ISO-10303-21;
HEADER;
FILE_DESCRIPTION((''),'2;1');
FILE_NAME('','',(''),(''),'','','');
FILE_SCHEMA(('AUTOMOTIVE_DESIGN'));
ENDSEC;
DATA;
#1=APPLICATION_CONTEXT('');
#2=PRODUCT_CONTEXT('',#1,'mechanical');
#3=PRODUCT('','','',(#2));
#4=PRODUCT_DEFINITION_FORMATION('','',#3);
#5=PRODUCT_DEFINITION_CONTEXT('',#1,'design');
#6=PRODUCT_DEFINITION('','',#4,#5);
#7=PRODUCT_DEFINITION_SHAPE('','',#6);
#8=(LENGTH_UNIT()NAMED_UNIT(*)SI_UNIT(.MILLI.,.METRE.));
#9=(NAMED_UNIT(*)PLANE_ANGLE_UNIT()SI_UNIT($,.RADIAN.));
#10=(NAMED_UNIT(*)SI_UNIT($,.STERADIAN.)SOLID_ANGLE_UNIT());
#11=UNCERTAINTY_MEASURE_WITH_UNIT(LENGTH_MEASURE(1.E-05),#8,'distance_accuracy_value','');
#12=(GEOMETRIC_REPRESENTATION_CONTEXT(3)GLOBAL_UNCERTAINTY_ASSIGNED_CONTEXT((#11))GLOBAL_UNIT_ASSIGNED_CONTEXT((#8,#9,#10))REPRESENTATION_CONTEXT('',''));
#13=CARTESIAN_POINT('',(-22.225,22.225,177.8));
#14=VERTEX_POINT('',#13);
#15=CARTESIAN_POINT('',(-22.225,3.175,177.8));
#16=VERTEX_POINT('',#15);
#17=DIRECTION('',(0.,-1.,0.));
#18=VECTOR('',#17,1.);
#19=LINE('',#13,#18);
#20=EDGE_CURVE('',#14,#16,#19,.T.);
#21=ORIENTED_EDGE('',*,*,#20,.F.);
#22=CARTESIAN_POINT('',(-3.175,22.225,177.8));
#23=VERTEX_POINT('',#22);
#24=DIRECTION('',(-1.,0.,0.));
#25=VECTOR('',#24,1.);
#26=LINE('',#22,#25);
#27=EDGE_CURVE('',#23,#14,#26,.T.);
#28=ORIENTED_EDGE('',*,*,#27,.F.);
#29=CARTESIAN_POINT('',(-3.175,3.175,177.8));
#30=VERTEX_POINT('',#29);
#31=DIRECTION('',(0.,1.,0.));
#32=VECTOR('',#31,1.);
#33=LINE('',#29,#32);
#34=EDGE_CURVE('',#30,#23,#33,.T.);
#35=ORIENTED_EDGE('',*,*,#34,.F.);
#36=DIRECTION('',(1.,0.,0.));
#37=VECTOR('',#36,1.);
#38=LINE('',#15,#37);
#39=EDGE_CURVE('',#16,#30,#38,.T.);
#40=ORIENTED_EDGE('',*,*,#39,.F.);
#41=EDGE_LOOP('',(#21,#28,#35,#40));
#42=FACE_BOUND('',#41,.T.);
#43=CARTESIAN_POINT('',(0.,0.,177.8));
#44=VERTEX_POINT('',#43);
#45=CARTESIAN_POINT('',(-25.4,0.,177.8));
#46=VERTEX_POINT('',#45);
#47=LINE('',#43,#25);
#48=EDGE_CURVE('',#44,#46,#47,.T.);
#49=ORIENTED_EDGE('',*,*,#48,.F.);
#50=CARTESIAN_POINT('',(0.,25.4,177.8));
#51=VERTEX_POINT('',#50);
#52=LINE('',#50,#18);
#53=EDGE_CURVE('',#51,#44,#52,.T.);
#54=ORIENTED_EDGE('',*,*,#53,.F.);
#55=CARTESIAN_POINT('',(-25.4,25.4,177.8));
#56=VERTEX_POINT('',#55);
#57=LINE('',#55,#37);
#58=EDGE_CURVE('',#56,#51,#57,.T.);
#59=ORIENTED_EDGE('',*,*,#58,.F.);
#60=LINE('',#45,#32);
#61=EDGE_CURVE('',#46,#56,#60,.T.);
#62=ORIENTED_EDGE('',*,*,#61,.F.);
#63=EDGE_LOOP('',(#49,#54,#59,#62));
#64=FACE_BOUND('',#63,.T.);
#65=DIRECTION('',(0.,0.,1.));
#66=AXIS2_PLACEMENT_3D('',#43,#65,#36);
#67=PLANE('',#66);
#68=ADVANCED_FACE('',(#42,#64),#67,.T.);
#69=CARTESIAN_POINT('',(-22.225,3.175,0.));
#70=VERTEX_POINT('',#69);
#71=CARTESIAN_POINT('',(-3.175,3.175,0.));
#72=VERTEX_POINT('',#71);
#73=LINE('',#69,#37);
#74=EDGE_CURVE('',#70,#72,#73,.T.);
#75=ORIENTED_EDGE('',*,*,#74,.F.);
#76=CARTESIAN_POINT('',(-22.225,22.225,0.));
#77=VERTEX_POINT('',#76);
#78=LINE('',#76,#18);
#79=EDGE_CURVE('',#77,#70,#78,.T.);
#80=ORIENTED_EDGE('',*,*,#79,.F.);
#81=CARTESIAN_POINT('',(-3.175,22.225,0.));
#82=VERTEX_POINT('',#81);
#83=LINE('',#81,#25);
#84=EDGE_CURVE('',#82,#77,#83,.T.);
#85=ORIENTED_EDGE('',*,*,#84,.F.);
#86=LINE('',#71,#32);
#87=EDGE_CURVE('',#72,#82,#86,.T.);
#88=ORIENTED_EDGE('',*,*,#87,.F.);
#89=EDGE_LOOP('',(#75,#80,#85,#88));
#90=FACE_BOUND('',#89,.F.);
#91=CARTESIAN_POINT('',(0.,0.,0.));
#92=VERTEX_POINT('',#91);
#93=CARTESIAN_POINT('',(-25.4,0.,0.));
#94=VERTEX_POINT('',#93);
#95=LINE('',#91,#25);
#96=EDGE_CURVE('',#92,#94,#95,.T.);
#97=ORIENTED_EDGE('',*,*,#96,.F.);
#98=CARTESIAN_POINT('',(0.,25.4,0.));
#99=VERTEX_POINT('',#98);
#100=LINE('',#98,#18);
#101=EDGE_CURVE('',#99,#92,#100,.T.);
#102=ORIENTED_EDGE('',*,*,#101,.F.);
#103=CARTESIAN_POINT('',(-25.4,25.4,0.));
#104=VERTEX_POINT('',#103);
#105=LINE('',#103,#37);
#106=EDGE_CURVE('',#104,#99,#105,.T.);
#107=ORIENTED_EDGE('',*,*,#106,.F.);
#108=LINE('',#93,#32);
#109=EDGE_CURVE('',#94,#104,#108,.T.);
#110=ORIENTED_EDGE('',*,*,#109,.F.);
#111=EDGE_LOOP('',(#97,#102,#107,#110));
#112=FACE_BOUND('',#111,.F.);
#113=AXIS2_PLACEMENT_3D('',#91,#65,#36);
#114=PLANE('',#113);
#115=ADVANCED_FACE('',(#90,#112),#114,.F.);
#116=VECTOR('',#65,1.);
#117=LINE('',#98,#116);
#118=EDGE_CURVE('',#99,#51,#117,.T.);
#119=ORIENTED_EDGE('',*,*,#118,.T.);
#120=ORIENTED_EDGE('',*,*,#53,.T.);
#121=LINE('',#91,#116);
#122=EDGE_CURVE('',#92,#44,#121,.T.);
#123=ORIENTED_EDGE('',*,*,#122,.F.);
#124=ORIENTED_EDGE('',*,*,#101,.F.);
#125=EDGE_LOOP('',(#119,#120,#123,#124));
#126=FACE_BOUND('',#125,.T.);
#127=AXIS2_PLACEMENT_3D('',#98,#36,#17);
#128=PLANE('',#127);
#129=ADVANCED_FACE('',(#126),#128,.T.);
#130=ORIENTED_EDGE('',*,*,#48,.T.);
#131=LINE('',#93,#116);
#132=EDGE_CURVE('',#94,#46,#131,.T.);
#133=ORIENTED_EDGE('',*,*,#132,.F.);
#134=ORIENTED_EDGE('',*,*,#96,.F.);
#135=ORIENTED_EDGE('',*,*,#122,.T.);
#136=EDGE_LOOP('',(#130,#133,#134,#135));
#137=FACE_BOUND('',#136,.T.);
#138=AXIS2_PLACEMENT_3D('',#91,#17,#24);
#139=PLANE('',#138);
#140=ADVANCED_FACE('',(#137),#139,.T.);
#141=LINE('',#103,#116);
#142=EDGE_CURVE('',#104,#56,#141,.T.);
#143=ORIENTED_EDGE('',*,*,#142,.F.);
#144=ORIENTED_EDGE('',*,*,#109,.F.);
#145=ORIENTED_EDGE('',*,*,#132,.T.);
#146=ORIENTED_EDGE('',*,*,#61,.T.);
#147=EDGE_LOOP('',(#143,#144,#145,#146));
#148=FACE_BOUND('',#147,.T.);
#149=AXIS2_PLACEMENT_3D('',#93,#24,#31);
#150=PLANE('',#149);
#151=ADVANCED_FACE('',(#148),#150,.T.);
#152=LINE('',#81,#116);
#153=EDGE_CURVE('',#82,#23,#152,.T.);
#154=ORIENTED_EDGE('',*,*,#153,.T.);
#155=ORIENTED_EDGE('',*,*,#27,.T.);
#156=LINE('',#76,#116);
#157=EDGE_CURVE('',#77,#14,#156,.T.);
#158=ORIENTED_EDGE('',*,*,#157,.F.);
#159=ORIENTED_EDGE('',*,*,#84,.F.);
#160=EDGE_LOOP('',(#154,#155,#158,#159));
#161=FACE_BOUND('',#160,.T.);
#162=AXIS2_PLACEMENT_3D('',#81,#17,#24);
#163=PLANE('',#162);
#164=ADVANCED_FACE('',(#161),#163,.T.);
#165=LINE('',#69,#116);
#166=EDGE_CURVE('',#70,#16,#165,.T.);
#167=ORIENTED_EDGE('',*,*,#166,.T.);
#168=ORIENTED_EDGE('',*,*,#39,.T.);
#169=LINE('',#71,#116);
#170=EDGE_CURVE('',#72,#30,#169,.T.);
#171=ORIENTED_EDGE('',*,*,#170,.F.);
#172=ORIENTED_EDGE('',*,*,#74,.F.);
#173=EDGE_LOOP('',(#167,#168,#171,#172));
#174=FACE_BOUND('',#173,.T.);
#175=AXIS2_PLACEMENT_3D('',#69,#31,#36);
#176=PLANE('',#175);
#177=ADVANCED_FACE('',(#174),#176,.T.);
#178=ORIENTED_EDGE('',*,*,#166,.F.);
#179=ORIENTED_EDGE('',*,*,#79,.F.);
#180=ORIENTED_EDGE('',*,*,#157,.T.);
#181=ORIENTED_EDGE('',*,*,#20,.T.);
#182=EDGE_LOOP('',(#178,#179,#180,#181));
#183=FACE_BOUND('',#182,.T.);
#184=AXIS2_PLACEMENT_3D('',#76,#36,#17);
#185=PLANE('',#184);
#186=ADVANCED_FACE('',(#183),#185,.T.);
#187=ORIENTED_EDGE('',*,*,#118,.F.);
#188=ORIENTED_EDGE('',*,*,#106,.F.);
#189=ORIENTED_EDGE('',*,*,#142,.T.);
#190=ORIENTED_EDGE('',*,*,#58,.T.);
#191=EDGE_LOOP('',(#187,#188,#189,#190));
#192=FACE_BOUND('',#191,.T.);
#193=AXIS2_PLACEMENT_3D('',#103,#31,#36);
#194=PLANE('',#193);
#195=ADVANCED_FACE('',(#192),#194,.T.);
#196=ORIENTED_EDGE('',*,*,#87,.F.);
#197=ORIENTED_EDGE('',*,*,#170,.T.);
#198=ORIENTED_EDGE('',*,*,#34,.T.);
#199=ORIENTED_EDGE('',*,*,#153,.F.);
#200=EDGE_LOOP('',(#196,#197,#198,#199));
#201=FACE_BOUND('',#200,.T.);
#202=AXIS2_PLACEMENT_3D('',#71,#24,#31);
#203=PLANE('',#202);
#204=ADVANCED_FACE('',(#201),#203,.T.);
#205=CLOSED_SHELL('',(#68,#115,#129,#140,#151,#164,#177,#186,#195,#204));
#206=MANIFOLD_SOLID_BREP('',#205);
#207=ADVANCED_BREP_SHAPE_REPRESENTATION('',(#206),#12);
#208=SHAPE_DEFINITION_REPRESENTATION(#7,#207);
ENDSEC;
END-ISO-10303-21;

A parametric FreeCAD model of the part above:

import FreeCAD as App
import Part
import Sketcher

V = App.Vector
Q = App.Units.Quantity


def add_polygon(sketch, points):
    """Adds a closed chain of lines whose ends are joined by coincident constraints."""
    first, n = sketch.GeometryCount, len(points)
    for a, b in zip(points, points[1:] + points[:1]):
        sketch.addGeometry(Part.LineSegment(App.Vector(*a, 0), App.Vector(*b, 0)), False)
    for i in range(n):
        sketch.addConstraint(Sketcher.Constraint("Coincident", first + i, 2, first + (i + 1) % n, 1))

doc = App.newDocument("Part")
body = doc.addObject("PartDesign::Body", "Body")

sketch1 = body.newObject("Sketcher::SketchObject", "Sketch")
sketch1.AttachmentSupport = (doc.getObject("XY_Plane"), [""])
sketch1.MapMode = "FlatFace"
add_polygon(sketch1, [(-25.4, 0), (0, 0), (0, 25.4), (-25.4, 25.4)])
add_polygon(sketch1, [(-22.225, 3.175), (-22.225, 22.225), (-3.175, 22.225), (-3.175, 3.175)])
sketch1.addConstraint(Sketcher.Constraint("Horizontal", 0))
sketch1.addConstraint(Sketcher.Constraint("Vertical", 1))
sketch1.addConstraint(Sketcher.Constraint("Horizontal", 2))
sketch1.addConstraint(Sketcher.Constraint("Vertical", 3))
sketch1.addConstraint(Sketcher.Constraint("Vertical", 4))
sketch1.addConstraint(Sketcher.Constraint("Horizontal", 5))
sketch1.addConstraint(Sketcher.Constraint("Vertical", 6))
sketch1.addConstraint(Sketcher.Constraint("Horizontal", 7))
sketch1.addConstraint(Sketcher.Constraint("Coincident", 0, 2, -1, 1))
sketch1.addConstraint(Sketcher.Constraint("Equal", 2, 1))
sketch1.addConstraint(Sketcher.Constraint("Equal", 7, 4))
sketch1.addConstraint(Sketcher.Constraint("DistanceX", 0, 1, 0, 2, Q("1 in")))
sketch1.addConstraint(Sketcher.Constraint("DistanceX", 5, 2, -1, 1, Q("0.125 in")))
sketch1.addConstraint(Sketcher.Constraint("DistanceY", -1, 1, 6, 2, Q("0.125 in")))
sketch1.addConstraint(Sketcher.Constraint("DistanceX", 2, 2, 4, 2, Q("0.125 in")))
pad1 = body.newObject("PartDesign::Pad", "Pad")
pad1.Profile = sketch1
pad1.Length = Q("7 in")

doc.recompute()
